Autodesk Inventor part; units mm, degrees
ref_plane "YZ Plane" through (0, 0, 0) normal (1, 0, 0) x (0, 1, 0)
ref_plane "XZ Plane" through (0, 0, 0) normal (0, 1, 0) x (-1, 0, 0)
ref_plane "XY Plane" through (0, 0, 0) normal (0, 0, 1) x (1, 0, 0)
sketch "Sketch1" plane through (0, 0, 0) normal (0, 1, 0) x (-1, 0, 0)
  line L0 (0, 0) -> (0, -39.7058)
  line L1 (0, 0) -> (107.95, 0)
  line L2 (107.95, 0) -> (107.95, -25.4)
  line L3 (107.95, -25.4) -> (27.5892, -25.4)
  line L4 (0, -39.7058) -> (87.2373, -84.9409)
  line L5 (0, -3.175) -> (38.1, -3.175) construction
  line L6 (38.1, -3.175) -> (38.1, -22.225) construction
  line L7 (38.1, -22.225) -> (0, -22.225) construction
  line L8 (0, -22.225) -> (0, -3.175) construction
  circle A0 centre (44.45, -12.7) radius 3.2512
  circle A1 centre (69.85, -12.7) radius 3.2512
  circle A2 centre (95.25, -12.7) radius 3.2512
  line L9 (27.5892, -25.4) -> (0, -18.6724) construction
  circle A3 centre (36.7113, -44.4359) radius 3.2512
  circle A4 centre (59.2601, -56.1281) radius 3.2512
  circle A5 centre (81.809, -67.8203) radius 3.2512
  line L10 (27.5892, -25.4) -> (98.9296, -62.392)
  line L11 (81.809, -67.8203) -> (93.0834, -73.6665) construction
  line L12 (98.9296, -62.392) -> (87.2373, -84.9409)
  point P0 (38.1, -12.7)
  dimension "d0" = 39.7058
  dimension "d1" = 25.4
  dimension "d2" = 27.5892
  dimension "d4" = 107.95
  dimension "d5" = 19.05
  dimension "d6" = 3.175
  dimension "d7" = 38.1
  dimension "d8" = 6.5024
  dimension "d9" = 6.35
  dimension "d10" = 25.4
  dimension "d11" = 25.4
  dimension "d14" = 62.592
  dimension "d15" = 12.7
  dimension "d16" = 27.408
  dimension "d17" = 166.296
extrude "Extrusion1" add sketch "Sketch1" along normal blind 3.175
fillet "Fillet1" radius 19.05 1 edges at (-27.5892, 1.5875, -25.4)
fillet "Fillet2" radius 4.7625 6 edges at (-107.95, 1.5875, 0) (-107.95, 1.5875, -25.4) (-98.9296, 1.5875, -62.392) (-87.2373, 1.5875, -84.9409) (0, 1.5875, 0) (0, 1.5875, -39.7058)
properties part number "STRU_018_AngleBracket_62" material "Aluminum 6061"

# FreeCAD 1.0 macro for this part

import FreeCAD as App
import Part
import Sketcher

V = App.Vector
Q = App.Units.Quantity


def edges_at(feature, points):
    """Names of the edges that pass closest to the given points."""
    edges = feature.Shape.Edges
    near = lambda p: min(range(len(edges)), key=lambda i: edges[i].distToShape(Part.Vertex(*p))[0])
    return sorted({f"Edge{near(p) + 1}" for p in points})

doc = App.newDocument("Part")
body = doc.addObject("PartDesign::Body", "Body")

sketch1 = body.newObject("Sketcher::SketchObject", "Sketch")
sketch1.AttachmentSupport = (doc.getObject("XZ_Plane"), [""])
sketch1.MapMode = "FlatFace"
sketch1.addGeometry([
    Part.LineSegment(V(-108, 0, 0), V(0, 0, 0)),
    Part.LineSegment(V(0, 0, 0), V(0, -39.7, 0)),
    Part.LineSegment(V(0, -39.7, 0), V(-87.2, -84.9, 0)),
    Part.LineSegment(V(-87.2, -84.9, 0), V(-98.9, -62.4, 0)),
    Part.LineSegment(V(-98.9, -62.4, 0), V(-27.6, -25.4, 0)),
    Part.LineSegment(V(-27.6, -25.4, 0), V(-108, -25.4, 0)),
    Part.LineSegment(V(-108, -25.4, 0), V(-108, 0, 0)),
    Part.Circle(V(-36.7, -44.4, 0), V(0, 0, 1), 3.3),
    Part.Circle(V(-81.8, -67.8, 0), V(0, 0, 1), 3.3),
    Part.Circle(V(-59.3, -56.1, 0), V(0, 0, 1), 3.3),
    Part.Circle(V(-44.5, -12.7, 0), V(0, 0, 1), 3.3),
    Part.Circle(V(-69.8, -12.7, 0), V(0, 0, 1), 3.3),
    Part.Circle(V(-95.2, -12.7, 0), V(0, 0, 1), 3.3),
], False)
sketch1.addConstraint([
    Sketcher.Constraint("Coincident", 0, 2, 1, 1),
    Sketcher.Constraint("Coincident", 1, 2, 2, 1),
    Sketcher.Constraint("Coincident", 2, 2, 3, 1),
    Sketcher.Constraint("Coincident", 3, 2, 4, 1),
    Sketcher.Constraint("Coincident", 4, 2, 5, 1),
    Sketcher.Constraint("Coincident", 5, 2, 6, 1),
    Sketcher.Constraint("Coincident", 6, 2, 0, 1),
    Sketcher.Constraint("Horizontal", 0),
    Sketcher.Constraint("Vertical", 1),
    Sketcher.Constraint("Horizontal", 5),
    Sketcher.Constraint("Vertical", 6),
    Sketcher.Constraint("Coincident", 0, 2, -1, 1),
    Sketcher.Constraint("Equal", 7, 8),
    Sketcher.Constraint("Equal", 8, 9),
    Sketcher.Constraint("Equal", 9, 10),
    Sketcher.Constraint("Equal", 10, 11),
    Sketcher.Constraint("Equal", 11, 12),
    Sketcher.Constraint("Perpendicular", 2, 3),
    Sketcher.Constraint("Perpendicular", 3, 4),
    Sketcher.Constraint("Horizontal", 10, 3, 11, 3),
    Sketcher.Constraint("Horizontal", 11, 3, 12, 3),
    Sketcher.Constraint("DistanceY", 6, 1, 6, 2, Q("1 in")),
    Sketcher.Constraint("Distance", 3, Q("1 in")),
    Sketcher.Constraint("Diameter", 7, Q("0.256 in")),
    Sketcher.Constraint("DistanceX", 11, 3, 10, 3, Q("1 in")),
    Sketcher.Constraint("DistanceX", 12, 3, 11, 3, Q("1 in")),
    Sketcher.Constraint("DistanceX", 0, 1, 0, 2, Q("4.25 in")),
    Sketcher.Constraint("DistanceY", 10, 3, -1, 1, Q("0.5 in")),
    Sketcher.Constraint("DistanceX", 5, 2, 12, 3, Q("0.5 in")),
    Sketcher.Constraint("DistanceY", 1, 2, 1, 1, Q("39.7058 mm")),
    Sketcher.Constraint("DistanceX", 4, 2, -1, 1, Q("1.0862 in")),
    Sketcher.Constraint("Distance", 2, Q("3.8688 in")),
    Sketcher.Constraint("DistanceY", 8, 3, -1, 1, Q("2.6701 in")),
    Sketcher.Constraint("DistanceX", 8, 3, 7, 3, Q("1.7755 in")),
    Sketcher.Constraint("DistanceX", 3, 2, 9, 3, Q("1.5618 in")),
    Sketcher.Constraint("DistanceY", 3, 2, 9, 3, Q("0.2466 in")),
    Sketcher.Constraint("DistanceX", 7, 3, -1, 1, Q("36.7113 mm")),
    Sketcher.Constraint("DistanceY", 7, 3, -1, 1, Q("44.436 mm")),
])
pad1 = body.newObject("PartDesign::Pad", "Pad")
pad1.Profile = sketch1
pad1.Length = Q("0.125 in")
pad1.Reversed = True
doc.recompute()

fillet = body.newObject("PartDesign::Fillet", "Fillet")
fillet.Base = (pad1, edges_at(pad1, [(-27.589, 1.587, -25.4)]))
fillet.Radius = Q("0.75 in")
doc.recompute()

fillet2 = body.newObject("PartDesign::Fillet", "Fillet001")
fillet2.Base = (fillet, edges_at(fillet, [
    (-107.95, 1.587, 0),
    (-107.95, 1.587, -25.4),
    (-98.93, 1.587, -62.392),
    (-87.237, 1.587, -84.941),
    (0, 1.587, 0),
    (0, 1.587, -39.706),
]))
fillet2.Radius = Q("0.1875 in")

doc.recompute()
